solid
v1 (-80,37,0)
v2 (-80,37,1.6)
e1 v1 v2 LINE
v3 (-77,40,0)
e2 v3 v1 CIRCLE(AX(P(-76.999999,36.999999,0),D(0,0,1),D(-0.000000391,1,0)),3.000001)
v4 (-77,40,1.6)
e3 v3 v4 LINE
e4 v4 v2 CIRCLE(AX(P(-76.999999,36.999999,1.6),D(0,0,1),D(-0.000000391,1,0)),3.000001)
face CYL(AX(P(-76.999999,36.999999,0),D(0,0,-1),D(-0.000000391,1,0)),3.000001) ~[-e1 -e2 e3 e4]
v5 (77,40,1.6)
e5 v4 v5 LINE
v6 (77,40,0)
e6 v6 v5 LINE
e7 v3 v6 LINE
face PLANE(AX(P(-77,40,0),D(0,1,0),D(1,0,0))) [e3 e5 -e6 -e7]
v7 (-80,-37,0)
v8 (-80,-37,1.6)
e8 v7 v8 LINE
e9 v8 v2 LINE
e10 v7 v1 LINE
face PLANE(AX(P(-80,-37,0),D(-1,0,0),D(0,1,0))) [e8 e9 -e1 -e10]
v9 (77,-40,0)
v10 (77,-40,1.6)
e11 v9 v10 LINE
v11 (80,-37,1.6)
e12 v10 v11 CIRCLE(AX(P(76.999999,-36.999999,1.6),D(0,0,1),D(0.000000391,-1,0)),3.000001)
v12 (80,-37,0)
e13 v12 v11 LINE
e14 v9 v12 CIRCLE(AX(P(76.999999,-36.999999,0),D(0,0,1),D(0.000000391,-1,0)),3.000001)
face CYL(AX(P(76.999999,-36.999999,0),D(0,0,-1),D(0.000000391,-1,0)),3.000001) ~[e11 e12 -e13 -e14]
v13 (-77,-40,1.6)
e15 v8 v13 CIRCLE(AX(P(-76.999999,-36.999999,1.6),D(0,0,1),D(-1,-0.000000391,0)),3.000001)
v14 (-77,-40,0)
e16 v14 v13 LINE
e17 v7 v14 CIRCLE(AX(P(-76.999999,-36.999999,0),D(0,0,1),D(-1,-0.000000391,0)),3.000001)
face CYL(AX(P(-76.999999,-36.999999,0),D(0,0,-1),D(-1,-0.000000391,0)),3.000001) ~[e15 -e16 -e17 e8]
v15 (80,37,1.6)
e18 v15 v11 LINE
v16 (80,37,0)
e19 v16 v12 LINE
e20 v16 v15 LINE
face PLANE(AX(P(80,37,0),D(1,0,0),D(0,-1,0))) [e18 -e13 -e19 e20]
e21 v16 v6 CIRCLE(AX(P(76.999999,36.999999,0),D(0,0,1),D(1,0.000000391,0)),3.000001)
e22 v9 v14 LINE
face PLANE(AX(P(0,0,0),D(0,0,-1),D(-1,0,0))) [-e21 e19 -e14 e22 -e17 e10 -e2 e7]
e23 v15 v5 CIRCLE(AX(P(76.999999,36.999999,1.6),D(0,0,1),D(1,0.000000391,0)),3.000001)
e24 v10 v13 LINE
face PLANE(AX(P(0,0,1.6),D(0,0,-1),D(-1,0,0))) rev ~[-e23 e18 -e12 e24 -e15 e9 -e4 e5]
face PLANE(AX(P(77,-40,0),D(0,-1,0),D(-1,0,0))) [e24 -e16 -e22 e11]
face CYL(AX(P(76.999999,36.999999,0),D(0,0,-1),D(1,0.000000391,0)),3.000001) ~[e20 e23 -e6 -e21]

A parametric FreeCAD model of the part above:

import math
import FreeCAD as App
import Part
import Sketcher

V = App.Vector

doc = App.newDocument("Part")
body = doc.addObject("PartDesign::Body", "Body")

# Sketch on XY plane
sketch1 = body.newObject("Sketcher::SketchObject", "Sketch")
sketch1.AttachmentSupport = (doc.getObject("XY_Plane"), [""])
sketch1.MapMode = "FlatFace"
sketch1.addGeometry([
    Part.LineSegment(V(77, 40, 0), V(-77, 40, 0)),  # 0
    Part.ArcOfCircle(Part.Circle(V(-76.999999, 36.999999, 0), V(0, 0, 1), 3.000001), math.radians(90.000022), math.radians(179.999978)),  # 1
    Part.LineSegment(V(-80, 37, 0), V(-80, -37, 0)),  # 2
    Part.ArcOfCircle(Part.Circle(V(-76.999999, -36.999999, 0), V(0, 0, 1), 3.000001), math.radians(-179.999978), math.radians(-90.000022)),  # 3
    Part.LineSegment(V(-77, -40, 0), V(77, -40, 0)),  # 4
    Part.ArcOfCircle(Part.Circle(V(76.999999, -36.999999, 0), V(0, 0, 1), 3.000001), math.radians(-89.999978), math.radians(-0.000022)),  # 5
    Part.LineSegment(V(80, -37, 0), V(80, 37, 0)),  # 6
    Part.ArcOfCircle(Part.Circle(V(76.999999, 36.999999, 0), V(0, 0, 1), 3.000001), math.radians(0.000022), math.radians(89.999978)),  # 7
], False)
sketch1.addConstraint([
    Sketcher.Constraint("Tangent", 0, 2, 1, 1),
    Sketcher.Constraint("Tangent", 1, 2, 2, 1),
    Sketcher.Constraint("Tangent", 2, 2, 3, 1),
    Sketcher.Constraint("Tangent", 3, 2, 4, 1),
    Sketcher.Constraint("Tangent", 4, 2, 5, 1),
    Sketcher.Constraint("Tangent", 5, 2, 6, 1),
    Sketcher.Constraint("Tangent", 6, 2, 7, 1),
    Sketcher.Constraint("Tangent", 7, 2, 0, 1),
    Sketcher.Constraint("Horizontal", 0),
    Sketcher.Constraint("Vertical", 2),
    Sketcher.Constraint("Horizontal", 4),
    Sketcher.Constraint("Vertical", 6),
    Sketcher.Constraint("Equal", 1, 3),
    Sketcher.Constraint("Equal", 3, 5),
    Sketcher.Constraint("Equal", 5, 7),
    Sketcher.Constraint("Symmetric", 1, 3, 5, 3, -1, 1),
    Sketcher.Constraint("Radius", 1, 3.000001),
    Sketcher.Constraint("DistanceX", 0, 2, 0, 1, 154.0),
    Sketcher.Constraint("DistanceY", 2, 2, 2, 1, 74.0),
])
pad1 = body.newObject("PartDesign::Pad", "Pad")
pad1.Profile = sketch1
pad1.Length = 1.6

doc.recompute()
